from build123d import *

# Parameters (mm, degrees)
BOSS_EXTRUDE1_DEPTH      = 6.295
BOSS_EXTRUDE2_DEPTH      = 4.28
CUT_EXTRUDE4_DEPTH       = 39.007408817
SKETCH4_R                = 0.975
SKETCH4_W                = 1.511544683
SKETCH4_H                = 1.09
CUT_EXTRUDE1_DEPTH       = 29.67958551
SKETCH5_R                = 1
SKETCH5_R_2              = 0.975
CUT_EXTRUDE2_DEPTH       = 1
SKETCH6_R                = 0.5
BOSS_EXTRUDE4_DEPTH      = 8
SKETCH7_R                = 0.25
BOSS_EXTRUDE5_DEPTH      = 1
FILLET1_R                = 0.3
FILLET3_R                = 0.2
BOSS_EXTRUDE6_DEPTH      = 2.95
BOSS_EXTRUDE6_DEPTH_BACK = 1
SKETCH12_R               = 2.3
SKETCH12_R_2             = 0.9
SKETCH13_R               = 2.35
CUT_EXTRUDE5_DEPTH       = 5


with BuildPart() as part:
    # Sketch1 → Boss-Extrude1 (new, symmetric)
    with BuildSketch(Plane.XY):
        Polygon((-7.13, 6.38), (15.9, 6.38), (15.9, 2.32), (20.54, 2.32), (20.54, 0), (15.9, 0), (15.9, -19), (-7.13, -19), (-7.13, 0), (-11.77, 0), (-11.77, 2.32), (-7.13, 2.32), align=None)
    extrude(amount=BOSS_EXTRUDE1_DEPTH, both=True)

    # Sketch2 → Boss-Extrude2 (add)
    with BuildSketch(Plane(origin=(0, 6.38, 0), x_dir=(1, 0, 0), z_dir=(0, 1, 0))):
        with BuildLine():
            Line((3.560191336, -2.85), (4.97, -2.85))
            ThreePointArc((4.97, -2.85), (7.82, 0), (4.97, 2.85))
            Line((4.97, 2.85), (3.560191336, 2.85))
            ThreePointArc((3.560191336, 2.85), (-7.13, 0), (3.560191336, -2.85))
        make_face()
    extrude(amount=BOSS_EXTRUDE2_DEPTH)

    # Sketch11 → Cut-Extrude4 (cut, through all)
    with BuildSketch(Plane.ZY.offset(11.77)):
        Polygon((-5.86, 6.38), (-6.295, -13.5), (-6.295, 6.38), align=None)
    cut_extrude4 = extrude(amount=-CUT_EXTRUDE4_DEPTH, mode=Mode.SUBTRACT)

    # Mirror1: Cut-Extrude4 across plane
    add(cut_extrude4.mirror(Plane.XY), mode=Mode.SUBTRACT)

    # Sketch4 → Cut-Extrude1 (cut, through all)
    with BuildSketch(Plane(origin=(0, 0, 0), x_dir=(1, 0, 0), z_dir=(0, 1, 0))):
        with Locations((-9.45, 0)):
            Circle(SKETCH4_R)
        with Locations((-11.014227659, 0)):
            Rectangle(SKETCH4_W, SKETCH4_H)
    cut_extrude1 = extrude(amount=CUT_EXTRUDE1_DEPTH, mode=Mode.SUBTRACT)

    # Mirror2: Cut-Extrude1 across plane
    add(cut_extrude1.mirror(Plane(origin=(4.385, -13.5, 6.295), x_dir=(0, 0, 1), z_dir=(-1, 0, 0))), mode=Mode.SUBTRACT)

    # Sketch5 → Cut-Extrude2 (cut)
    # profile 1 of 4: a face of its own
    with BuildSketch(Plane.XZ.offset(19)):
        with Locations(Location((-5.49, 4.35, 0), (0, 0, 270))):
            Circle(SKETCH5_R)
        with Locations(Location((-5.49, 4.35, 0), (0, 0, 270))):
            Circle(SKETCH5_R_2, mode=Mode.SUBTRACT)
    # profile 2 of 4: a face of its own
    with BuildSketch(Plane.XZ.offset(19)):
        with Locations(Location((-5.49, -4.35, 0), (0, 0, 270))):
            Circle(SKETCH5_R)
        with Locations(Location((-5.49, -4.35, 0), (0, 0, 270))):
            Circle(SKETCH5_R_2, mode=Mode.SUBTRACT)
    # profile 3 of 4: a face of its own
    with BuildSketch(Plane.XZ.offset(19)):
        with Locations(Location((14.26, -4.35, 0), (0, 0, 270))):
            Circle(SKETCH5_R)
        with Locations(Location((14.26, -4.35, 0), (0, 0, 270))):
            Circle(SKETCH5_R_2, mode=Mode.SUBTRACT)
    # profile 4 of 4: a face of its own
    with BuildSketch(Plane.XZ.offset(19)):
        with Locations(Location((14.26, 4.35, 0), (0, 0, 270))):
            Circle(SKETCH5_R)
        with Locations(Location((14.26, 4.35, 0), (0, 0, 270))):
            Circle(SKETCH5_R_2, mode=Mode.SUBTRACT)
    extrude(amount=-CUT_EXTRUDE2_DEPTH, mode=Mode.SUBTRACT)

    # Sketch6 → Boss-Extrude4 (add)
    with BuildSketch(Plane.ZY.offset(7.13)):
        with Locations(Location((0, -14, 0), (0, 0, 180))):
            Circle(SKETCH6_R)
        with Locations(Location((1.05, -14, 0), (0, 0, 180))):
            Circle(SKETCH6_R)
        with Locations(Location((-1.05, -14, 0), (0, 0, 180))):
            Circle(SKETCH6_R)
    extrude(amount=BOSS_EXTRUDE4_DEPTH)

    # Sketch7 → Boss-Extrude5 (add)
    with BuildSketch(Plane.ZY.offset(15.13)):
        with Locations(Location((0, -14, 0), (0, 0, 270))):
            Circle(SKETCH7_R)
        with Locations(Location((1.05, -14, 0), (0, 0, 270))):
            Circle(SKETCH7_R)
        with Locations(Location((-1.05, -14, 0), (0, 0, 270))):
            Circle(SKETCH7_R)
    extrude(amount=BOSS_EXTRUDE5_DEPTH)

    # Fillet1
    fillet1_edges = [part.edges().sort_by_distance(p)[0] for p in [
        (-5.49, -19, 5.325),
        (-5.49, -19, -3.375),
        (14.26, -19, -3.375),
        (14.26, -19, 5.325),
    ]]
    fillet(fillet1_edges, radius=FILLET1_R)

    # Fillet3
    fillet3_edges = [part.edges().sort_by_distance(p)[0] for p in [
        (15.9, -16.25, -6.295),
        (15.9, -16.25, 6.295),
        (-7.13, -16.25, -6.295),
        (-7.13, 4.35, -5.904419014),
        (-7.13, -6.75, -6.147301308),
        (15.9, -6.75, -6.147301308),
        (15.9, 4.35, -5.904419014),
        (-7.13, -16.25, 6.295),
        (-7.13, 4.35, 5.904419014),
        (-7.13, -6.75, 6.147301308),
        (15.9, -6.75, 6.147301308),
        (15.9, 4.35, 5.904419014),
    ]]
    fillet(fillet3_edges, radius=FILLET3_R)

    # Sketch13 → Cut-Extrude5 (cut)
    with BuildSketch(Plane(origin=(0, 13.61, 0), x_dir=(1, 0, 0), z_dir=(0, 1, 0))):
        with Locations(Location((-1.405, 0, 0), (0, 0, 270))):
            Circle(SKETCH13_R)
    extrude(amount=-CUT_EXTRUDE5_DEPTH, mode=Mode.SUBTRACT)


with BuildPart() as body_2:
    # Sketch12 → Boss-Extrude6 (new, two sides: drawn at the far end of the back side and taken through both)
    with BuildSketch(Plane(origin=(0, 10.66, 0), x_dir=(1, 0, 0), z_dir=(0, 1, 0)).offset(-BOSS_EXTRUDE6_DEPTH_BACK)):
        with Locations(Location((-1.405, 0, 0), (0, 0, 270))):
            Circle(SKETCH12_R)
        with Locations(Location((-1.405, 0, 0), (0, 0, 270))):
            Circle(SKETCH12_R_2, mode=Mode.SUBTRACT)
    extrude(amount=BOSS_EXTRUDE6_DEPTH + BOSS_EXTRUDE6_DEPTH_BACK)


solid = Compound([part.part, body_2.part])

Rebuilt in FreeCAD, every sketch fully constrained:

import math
import FreeCAD as App
import Part
import Sketcher
from FreeCAD import Vector
Q = App.Units.Quantity


def edges_at(feature, points):
    """Names of the edges that pass closest to the given points."""
    edges = feature.Shape.Edges
    near = lambda p: min(range(len(edges)), key=lambda i: edges[i].distToShape(Part.Vertex(*p))[0])
    return sorted({f"Edge{near(p) + 1}" for p in points})


def add_polygon(sketch, points):
    """Adds a closed chain of lines whose ends are joined by coincident constraints."""
    first, n = sketch.GeometryCount, len(points)
    for a, b in zip(points, points[1:] + points[:1]):
        sketch.addGeometry(Part.LineSegment(App.Vector(*a, 0), App.Vector(*b, 0)), False)
    for i in range(n):
        sketch.addConstraint(Sketcher.Constraint("Coincident", first + i, 2, first + (i + 1) % n, 1))

doc = App.newDocument("Part")
params = doc.addObject("Spreadsheet::Sheet", "Params")
for row, (alias, value) in enumerate([
    ("sketch1_height", "19 mm"),
    ("sketch1_width", "23.03 mm"),
    ("sketch1_width2", "4.64 mm"),
    ("sketch1_height2", "4.06 mm"),
    ("sketch1_height3", "2.32 mm"),
    ("pad1_length", "12.59 mm"),
    ("sketch2_radius", "2.85 mm"),
    ("pad2_length", "4.28 mm"),
    ("sketch3_width", "19.88 mm"),
    ("sketch4_height", "1.09 mm"),
    ("sketch5_diameter", "2 mm"),
    ("sketch5_diameter2", "1.95 mm"),
    ("pocket3_length", "1 mm"),
    ("sketch6_diameter", "1 mm"),
    ("pad3_length", "8 mm"),
    ("sketch7_diameter", "0.5 mm"),
    ("pad4_length", "1 mm"),
    ("fillet_radius", "0.3 mm"),
    ("fillet2_radius", "0.2 mm"),
    ("sketch8_diameter", "4.7 mm"),
    ("pocket4_length", "5 mm"),
    ("sketch9_diameter", "4.6 mm"),
    ("sketch9_diameter2", "1.8 mm"),
    ("pad5_length", "2.95 mm"),
    ("pad5_length2", "1 mm"),
], start=1):
    params.set(f"A{row}", alias)
    params.set(f"B{row}", "=" + value)
    params.setAlias(f"B{row}", alias)

body = doc.addObject("PartDesign::Body", "Body")

# Sketch on XY plane
sketch1 = body.newObject("Sketcher::SketchObject", "Sketch")
sketch1.AttachmentSupport = (doc.getObject("XY_Plane"), [""])
sketch1.MapMode = "FlatFace"
add_polygon(sketch1, [(15.9, 6.4), (-7.1, 6.4), (-7.1, 2.3), (-11.8, 2.3), (-11.8, 0), (-7.1, 0), (-7.1, -19), (15.9, -19), (15.9, 0), (20.5, 0), (20.5, 2.3), (15.9, 2.3)])  # lines 0-11
sketch1.addConstraint(Sketcher.Constraint("Horizontal", 0))
sketch1.addConstraint(Sketcher.Constraint("Vertical", 1))
sketch1.addConstraint(Sketcher.Constraint("Horizontal", 2))
sketch1.addConstraint(Sketcher.Constraint("Vertical", 3))
sketch1.addConstraint(Sketcher.Constraint("Horizontal", 4))
sketch1.addConstraint(Sketcher.Constraint("Vertical", 5))
sketch1.addConstraint(Sketcher.Constraint("Horizontal", 6))
sketch1.addConstraint(Sketcher.Constraint("Vertical", 7))
sketch1.addConstraint(Sketcher.Constraint("Horizontal", 8))
sketch1.addConstraint(Sketcher.Constraint("Vertical", 9))
sketch1.addConstraint(Sketcher.Constraint("Horizontal", 10))
sketch1.addConstraint(Sketcher.Constraint("Vertical", 11))
sketch1.addConstraint(Sketcher.Constraint("PointOnObject", 3, 2, -1))
sketch1.addConstraint(Sketcher.Constraint("PointOnObject", 7, 2, -1))
sketch1.addConstraint(Sketcher.Constraint("Horizontal", 2, 2, 9, 2))
sketch1.addConstraint(Sketcher.Constraint("Vertical", 1, 2, 4, 2))
sketch1.addConstraint(Sketcher.Constraint("Vertical", 7, 2, 10, 2))
sketch1.addConstraint(Sketcher.Constraint("Equal", 4, 8))
sketch1.addConstraint(Sketcher.Constraint("DistanceY", 5, 2, 5, 1, Q("19 mm")))
sketch1.addConstraint(Sketcher.Constraint("DistanceX", 0, 2, 0, 1, Q("23.03 mm")))
sketch1.addConstraint(Sketcher.Constraint("DistanceX", 2, 2, 2, 1, Q("4.64 mm")))
sketch1.addConstraint(Sketcher.Constraint("DistanceY", 1, 2, 1, 1, Q("4.06 mm")))
sketch1.addConstraint(Sketcher.Constraint("DistanceY", 3, 2, 3, 1, Q("2.32 mm")))
sketch1.addConstraint(Sketcher.Constraint("DistanceX", -1, 1, 6, 2, Q("15.9 mm")))
sketch1.setExpression("Constraints[30]", "Params.sketch1_height")
sketch1.setExpression("Constraints[31]", "Params.sketch1_width")
sketch1.setExpression("Constraints[32]", "Params.sketch1_width2")
sketch1.setExpression("Constraints[33]", "Params.sketch1_height2")
sketch1.setExpression("Constraints[34]", "Params.sketch1_height3")
pad1 = body.newObject("PartDesign::Pad", "Pad")
pad1.Profile = sketch1
pad1.setExpression("Length", "Params.pad1_length")
pad1.Midplane = True

# Sketch on XZ plane
sketch2 = body.newObject("Sketcher::SketchObject", "Sketch001")
sketch2.AttachmentSupport = (doc.getObject("XZ_Plane"), [""])
sketch2.MapMode = "FlatFace"
sketch2.AttachmentOffset = App.Placement(Vector(0, 0, -6.38), App.Rotation())
sketch2.addGeometry(Part.LineSegment(Vector(3.6, 2.9, 0), Vector(5, 2.9, 0)), False)
sketch2.addGeometry(Part.ArcOfCircle(Part.Circle(Vector(5, 0, 0), Vector(0, 0, 1), 2.9), math.radians(-90), math.radians(90)), False)
sketch2.addGeometry(Part.LineSegment(Vector(5, -2.9, 0), Vector(3.6, -2.9, 0)), False)
sketch2.addGeometry(Part.ArcOfCircle(Part.Circle(Vector(-1.4, 0, 0), Vector(0, 0, 1), 5.7), math.radians(30), math.radians(330)), False)
sketch2.addConstraint(Sketcher.Constraint("Tangent", 0, 2, 1, 2))
sketch2.addConstraint(Sketcher.Constraint("Tangent", 1, 1, 2, 1))
sketch2.addConstraint(Sketcher.Constraint("Coincident", 2, 2, 3, 2))
sketch2.addConstraint(Sketcher.Constraint("Coincident", 3, 1, 0, 1))
sketch2.addConstraint(Sketcher.Constraint("Horizontal", 0))
sketch2.addConstraint(Sketcher.Constraint("Horizontal", 2))
sketch2.addConstraint(Sketcher.Constraint("Symmetric", 2, 2, 3, 1, -1))
sketch2.addConstraint(Sketcher.Constraint("Radius", 1, Q("2.85 mm")))
sketch2.addConstraint(Sketcher.Constraint("Radius", 3, Q("5.725 mm")))
sketch2.addConstraint(Sketcher.Constraint("DistanceX", -1, 1, 1, 3, Q("4.97 mm")))
sketch2.addConstraint(Sketcher.Constraint("DistanceX", 3, 3, -1, 1, Q("1.405 mm")))
sketch2.setExpression("Constraints[7]", "Params.sketch2_radius")
pad2 = body.newObject("PartDesign::Pad", "Pad001")
pad2.Profile = sketch2
pad2.setExpression("Length", "Params.pad2_length")
pad2.Reversed = True

# Sketch on YZ plane
sketch3 = body.newObject("Sketcher::SketchObject", "Sketch002")
sketch3.AttachmentSupport = (doc.getObject("YZ_Plane"), [""])
sketch3.MapMode = "FlatFace"
sketch3.AttachmentOffset = App.Placement(Vector(0, 0, -11.77), App.Rotation())
add_polygon(sketch3, [(-13.5, -6.29), (6.38, -5.86), (6.38, -6.29)])  # lines 0-2
sketch3.addConstraint(Sketcher.Constraint("Vertical", 1))
sketch3.addConstraint(Sketcher.Constraint("Horizontal", 2))
sketch3.addConstraint(Sketcher.Constraint("DistanceX", 2, 2, 2, 1, Q("19.88 mm")))
sketch3.addConstraint(Sketcher.Constraint("DistanceX", 2, 2, -1, 1, Q("13.5 mm")))
sketch3.addConstraint(Sketcher.Constraint("DistanceY", 1, 2, 1, 1, Q("0.435 mm")))
sketch3.addConstraint(Sketcher.Constraint("DistanceY", 0, 2, -1, 1, Q("5.86 mm")))
sketch3.setExpression("Constraints[5]", "Params.sketch3_width")
pocket1 = body.newObject("PartDesign::Pocket", "Pocket")
pocket1.Profile = sketch3
pocket1.Type = "ThroughAll"
pocket1.Reversed = True
doc.recompute()

mirrored = body.newObject("PartDesign::Mirrored", "Mirrored")
mirrored.Originals = [pocket1]
mirrored.MirrorPlane = (doc.getObject("XY_Plane"), [""])
body.Tip = mirrored

# Sketch on XZ plane
sketch4 = body.newObject("Sketcher::SketchObject", "Sketch003")
sketch4.AttachmentSupport = (doc.getObject("XZ_Plane"), [""])
sketch4.MapMode = "FlatFace"
sketch4.addGeometry(Part.ArcOfCircle(Part.Circle(Vector(-9.4, 0, 0), Vector(0, 0, 1), 1), math.radians(-146), math.radians(146)), False)
sketch4.addGeometry(Part.LineSegment(Vector(-10.3, -0.5, 0), Vector(-11.8, -0.5, 0)), False)
sketch4.addGeometry(Part.LineSegment(Vector(-11.8, -0.5, 0), Vector(-11.8, 0.5, 0)), False)
sketch4.addGeometry(Part.LineSegment(Vector(-11.8, 0.5, 0), Vector(-10.3, 0.5, 0)), False)
sketch4.addConstraint(Sketcher.Constraint("Coincident", 0, 1, 1, 1))
sketch4.addConstraint(Sketcher.Constraint("Coincident", 1, 2, 2, 1))
sketch4.addConstraint(Sketcher.Constraint("Coincident", 2, 2, 3, 1))
sketch4.addConstraint(Sketcher.Constraint("Coincident", 3, 2, 0, 2))
sketch4.addConstraint(Sketcher.Constraint("Horizontal", 1))
sketch4.addConstraint(Sketcher.Constraint("Vertical", 2))
sketch4.addConstraint(Sketcher.Constraint("Horizontal", 3))
sketch4.addConstraint(Sketcher.Constraint("Symmetric", 0, 1, 3, 2, -1))
sketch4.addConstraint(Sketcher.Constraint("Radius", 0, Q("0.975 mm")))
sketch4.addConstraint(Sketcher.Constraint("DistanceY", 2, 1, 2, 2, Q("1.09 mm")))
sketch4.addConstraint(Sketcher.Constraint("DistanceX", 0, 3, -1, 1, Q("9.45 mm")))
sketch4.addConstraint(Sketcher.Constraint("DistanceX", 1, 2, -1, 1, Q("11.77 mm")))
sketch4.setExpression("Constraints[9]", "Params.sketch4_height")
pocket2 = body.newObject("PartDesign::Pocket", "Pocket001")
pocket2.Profile = sketch4
pocket2.Type = "ThroughAll"
doc.recompute()

datumplane = body.newObject("PartDesign::Plane", "DatumPlane")
datumplane.AttachmentSupport = (doc.getObject("YZ_Plane"), [""])
datumplane.MapMode = "FlatFace"
datumplane.AttachmentOffset = App.Placement(Vector(0, 0, 4.385), App.Rotation())
mirrored2 = body.newObject("PartDesign::Mirrored", "Mirrored001")
mirrored2.Originals = [pocket2]
mirrored2.MirrorPlane = (datumplane, [""])
body.Tip = mirrored2

# Sketch on XZ plane
sketch5 = body.newObject("Sketcher::SketchObject", "Sketch004")
sketch5.AttachmentSupport = (doc.getObject("XZ_Plane"), [""])
sketch5.MapMode = "FlatFace"
sketch5.AttachmentOffset = App.Placement(Vector(0, 0, 19), App.Rotation())
sketch5.addGeometry(Part.Circle(Vector(-5.5, 4.3, 0), Vector(0, 0, 1), 1), False)
sketch5.addGeometry(Part.Circle(Vector(-5.5, 4.3, 0), Vector(0, 0, 1), 1), False)
sketch5.addGeometry(Part.Circle(Vector(-5.5, -4.3, 0), Vector(0, 0, 1), 1), False)
sketch5.addGeometry(Part.Circle(Vector(-5.5, -4.3, 0), Vector(0, 0, 1), 1), False)
sketch5.addGeometry(Part.Circle(Vector(14.3, -4.3, 0), Vector(0, 0, 1), 1), False)
sketch5.addGeometry(Part.Circle(Vector(14.3, -4.3, 0), Vector(0, 0, 1), 1), False)
sketch5.addGeometry(Part.Circle(Vector(14.3, 4.3, 0), Vector(0, 0, 1), 1), False)
sketch5.addGeometry(Part.Circle(Vector(14.3, 4.3, 0), Vector(0, 0, 1), 1), False)
sketch5.addConstraint(Sketcher.Constraint("Coincident", 1, 3, 0, 3))
sketch5.addConstraint(Sketcher.Constraint("Coincident", 3, 3, 2, 3))
sketch5.addConstraint(Sketcher.Constraint("Coincident", 5, 3, 4, 3))
sketch5.addConstraint(Sketcher.Constraint("Coincident", 7, 3, 6, 3))
sketch5.addConstraint(Sketcher.Constraint("Equal", 0, 2))
sketch5.addConstraint(Sketcher.Constraint("Equal", 1, 3))
sketch5.addConstraint(Sketcher.Constraint("Equal", 2, 4))
sketch5.addConstraint(Sketcher.Constraint("Equal", 3, 5))
sketch5.addConstraint(Sketcher.Constraint("Equal", 4, 6))
sketch5.addConstraint(Sketcher.Constraint("Equal", 5, 7))
sketch5.addConstraint(Sketcher.Constraint("Symmetric", 0, 3, 2, 3, -1))
sketch5.addConstraint(Sketcher.Constraint("Symmetric", 4, 3, 6, 3, -1))
sketch5.addConstraint(Sketcher.Constraint("Horizontal", 3, 3, 4, 3))
sketch5.addConstraint(Sketcher.Constraint("Diameter", 0, Q("2 mm")))
sketch5.addConstraint(Sketcher.Constraint("Diameter", 1, Q("1.95 mm")))
sketch5.addConstraint(Sketcher.Constraint("DistanceY", 2, 3, 0, 3, Q("8.7 mm")))
sketch5.addConstraint(Sketcher.Constraint("DistanceX", 0, 3, -1, 1, Q("5.49 mm")))
sketch5.addConstraint(Sketcher.Constraint("DistanceX", -1, 1, 4, 3, Q("14.26 mm")))
sketch5.setExpression("Constraints[13]", "Params.sketch5_diameter")
sketch5.setExpression("Constraints[14]", "Params.sketch5_diameter2")
pocket3 = body.newObject("PartDesign::Pocket", "Pocket002")
pocket3.Profile = sketch5
pocket3.setExpression("Length", "Params.pocket3_length")

# Sketch on YZ plane
sketch6 = body.newObject("Sketcher::SketchObject", "Sketch005")
sketch6.AttachmentSupport = (doc.getObject("YZ_Plane"), [""])
sketch6.MapMode = "FlatFace"
sketch6.AttachmentOffset = App.Placement(Vector(0, 0, -7.13), App.Rotation())
sketch6.addGeometry(Part.Circle(Vector(-14, 0, 0), Vector(0, 0, 1), 0.5), False)
sketch6.addGeometry(Part.Circle(Vector(-14, 1.1, 0), Vector(0, 0, 1), 0.5), False)
sketch6.addGeometry(Part.Circle(Vector(-14, -1.1, 0), Vector(0, 0, 1), 0.5), False)
sketch6.addConstraint(Sketcher.Constraint("Equal", 0, 1))
sketch6.addConstraint(Sketcher.Constraint("Equal", 1, 2))
sketch6.addConstraint(Sketcher.Constraint("Symmetric", 1, 3, 2, 3, -1))
sketch6.addConstraint(Sketcher.Constraint("PointOnObject", 0, 3, -1))
sketch6.addConstraint(Sketcher.Constraint("Vertical", 0, 3, 1, 3))
sketch6.addConstraint(Sketcher.Constraint("Diameter", 0, Q("1 mm")))
sketch6.addConstraint(Sketcher.Constraint("DistanceX", 0, 3, -1, 1, Q("14 mm")))
sketch6.addConstraint(Sketcher.Constraint("DistanceY", 2, 3, 1, 3, Q("2.1 mm")))
sketch6.setExpression("Constraints[5]", "Params.sketch6_diameter")
pad3 = body.newObject("PartDesign::Pad", "Pad002")
pad3.Profile = sketch6
pad3.setExpression("Length", "Params.pad3_length")
pad3.Reversed = True

# Sketch on YZ plane
sketch7 = body.newObject("Sketcher::SketchObject", "Sketch006")
sketch7.AttachmentSupport = (doc.getObject("YZ_Plane"), [""])
sketch7.MapMode = "FlatFace"
sketch7.AttachmentOffset = App.Placement(Vector(0, 0, -15.13), App.Rotation())
sketch7.addGeometry(Part.Circle(Vector(-14, 0, 0), Vector(0, 0, 1), 0.25), False)
sketch7.addGeometry(Part.Circle(Vector(-14, 1.05, 0), Vector(0, 0, 1), 0.25), False)
sketch7.addGeometry(Part.Circle(Vector(-14, -1.05, 0), Vector(0, 0, 1), 0.25), False)
sketch7.addConstraint(Sketcher.Constraint("Equal", 0, 1))
sketch7.addConstraint(Sketcher.Constraint("Equal", 1, 2))
sketch7.addConstraint(Sketcher.Constraint("Symmetric", 1, 3, 2, 3, -1))
sketch7.addConstraint(Sketcher.Constraint("PointOnObject", 0, 3, -1))
sketch7.addConstraint(Sketcher.Constraint("Vertical", 0, 3, 1, 3))
sketch7.addConstraint(Sketcher.Constraint("Diameter", 0, Q("0.5 mm")))
sketch7.addConstraint(Sketcher.Constraint("DistanceX", 0, 3, -1, 1, Q("14 mm")))
sketch7.addConstraint(Sketcher.Constraint("DistanceY", 2, 3, 1, 3, Q("2.1 mm")))
sketch7.setExpression("Constraints[5]", "Params.sketch7_diameter")
pad4 = body.newObject("PartDesign::Pad", "Pad003")
pad4.Profile = sketch7
pad4.setExpression("Length", "Params.pad4_length")
pad4.Reversed = True
doc.recompute()

fillet = body.newObject("PartDesign::Fillet", "Fillet")
fillet.Base = (pad4, edges_at(pad4, [
    (-5.49, -19, 5.325),
    (-5.49, -19, -3.375),
    (14.26, -19, -3.375),
    (14.26, -19, 5.325),
]))
fillet.setExpression("Radius", "Params.fillet_radius")
doc.recompute()

fillet2 = body.newObject("PartDesign::Fillet", "Fillet001")
fillet2.Base = (fillet, edges_at(fillet, [
    (15.9, -16.25, -6.295),
    (15.9, -16.25, 6.295),
    (-7.13, -16.25, -6.295),
    (-7.13, 4.35, -5.904),
    (-7.13, -6.75, -6.147),
    (15.9, -6.75, -6.147),
    (15.9, 4.35, -5.904),
    (-7.13, -16.25, 6.295),
    (-7.13, 4.35, 5.904),
    (-7.13, -6.75, 6.147),
    (15.9, -6.75, 6.147),
    (15.9, 4.35, 5.904),
]))
fillet2.setExpression("Radius", "Params.fillet2_radius")

# Sketch on XZ plane
sketch8 = body.newObject("Sketcher::SketchObject", "Sketch007")
sketch8.AttachmentSupport = (doc.getObject("XZ_Plane"), [""])
sketch8.MapMode = "FlatFace"
sketch8.AttachmentOffset = App.Placement(Vector(0, 0, -13.61), App.Rotation())
sketch8.addGeometry(Part.Circle(Vector(-1.4, 0, 0), Vector(0, 0, 1), 2.4), False)
sketch8.addConstraint(Sketcher.Constraint("PointOnObject", 0, 3, -1))
sketch8.addConstraint(Sketcher.Constraint("Diameter", 0, Q("4.7 mm")))
sketch8.addConstraint(Sketcher.Constraint("DistanceX", 0, 3, -1, 1, Q("1.405 mm")))
sketch8.setExpression("Constraints[1]", "Params.sketch8_diameter")
pocket4 = body.newObject("PartDesign::Pocket", "Pocket003")
pocket4.Profile = sketch8
pocket4.setExpression("Length", "Params.pocket4_length")
pocket4.Reversed = True
body2 = doc.addObject("PartDesign::Body", "Body001")

# Sketch on XZ plane
sketch9 = body2.newObject("Sketcher::SketchObject", "Sketch008")
sketch9.AttachmentSupport = (doc.getObject("XZ_Plane001"), [""])
sketch9.MapMode = "FlatFace"
sketch9.AttachmentOffset = App.Placement(Vector(0, 0, -10.66), App.Rotation())
sketch9.addGeometry(Part.Circle(Vector(-1.4, 0, 0), Vector(0, 0, 1), 2.3), False)
sketch9.addGeometry(Part.Circle(Vector(-1.4, 0, 0), Vector(0, 0, 1), 0.9), False)
sketch9.addConstraint(Sketcher.Constraint("Coincident", 1, 3, 0, 3))
sketch9.addConstraint(Sketcher.Constraint("PointOnObject", 0, 3, -1))
sketch9.addConstraint(Sketcher.Constraint("Diameter", 0, Q("4.6 mm")))
sketch9.addConstraint(Sketcher.Constraint("Diameter", 1, Q("1.8 mm")))
sketch9.addConstraint(Sketcher.Constraint("DistanceX", 0, 3, -1, 1, Q("1.405 mm")))
sketch9.setExpression("Constraints[2]", "Params.sketch9_diameter")
sketch9.setExpression("Constraints[3]", "Params.sketch9_diameter2")
pad5 = body2.newObject("PartDesign::Pad", "Pad004")
pad5.Profile = sketch9
pad5.Type = "TwoLengths"
pad5.setExpression("Length", "Params.pad5_length")
pad5.setExpression("Length2", "Params.pad5_length2")
pad5.Reversed = True

doc.recompute()
